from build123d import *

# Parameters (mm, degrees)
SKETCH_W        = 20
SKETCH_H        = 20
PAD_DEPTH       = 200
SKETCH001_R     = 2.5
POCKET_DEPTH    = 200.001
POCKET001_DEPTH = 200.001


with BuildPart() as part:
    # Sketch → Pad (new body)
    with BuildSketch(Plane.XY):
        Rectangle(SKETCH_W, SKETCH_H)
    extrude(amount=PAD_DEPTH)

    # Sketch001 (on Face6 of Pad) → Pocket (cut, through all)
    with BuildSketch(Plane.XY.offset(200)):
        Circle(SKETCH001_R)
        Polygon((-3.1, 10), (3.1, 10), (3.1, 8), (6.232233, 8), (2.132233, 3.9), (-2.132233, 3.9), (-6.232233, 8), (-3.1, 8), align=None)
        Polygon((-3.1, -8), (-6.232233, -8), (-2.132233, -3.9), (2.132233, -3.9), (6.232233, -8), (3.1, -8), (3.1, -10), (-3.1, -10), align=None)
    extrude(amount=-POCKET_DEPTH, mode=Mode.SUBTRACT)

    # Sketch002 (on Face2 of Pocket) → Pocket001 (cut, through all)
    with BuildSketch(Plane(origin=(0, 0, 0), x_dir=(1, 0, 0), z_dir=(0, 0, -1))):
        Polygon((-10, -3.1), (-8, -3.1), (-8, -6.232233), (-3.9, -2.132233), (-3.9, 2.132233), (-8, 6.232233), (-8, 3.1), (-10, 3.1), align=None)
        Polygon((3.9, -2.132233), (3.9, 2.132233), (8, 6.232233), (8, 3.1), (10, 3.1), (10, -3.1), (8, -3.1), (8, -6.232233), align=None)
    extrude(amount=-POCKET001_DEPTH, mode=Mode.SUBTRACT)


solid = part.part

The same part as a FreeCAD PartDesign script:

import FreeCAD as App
import Part
import Sketcher

V = App.Vector
Q = App.Units.Quantity


def add_polygon(sketch, points):
    """Adds a closed chain of lines whose ends are joined by coincident constraints."""
    first, n = sketch.GeometryCount, len(points)
    for a, b in zip(points, points[1:] + points[:1]):
        sketch.addGeometry(Part.LineSegment(App.Vector(*a, 0), App.Vector(*b, 0)), False)
    for i in range(n):
        sketch.addConstraint(Sketcher.Constraint("Coincident", first + i, 2, first + (i + 1) % n, 1))

doc = App.newDocument("Part")
body = doc.addObject("PartDesign::Body", "Body")

# Sketch on XY plane
sketch1 = body.newObject("Sketcher::SketchObject", "Sketch")
sketch1.AttachmentSupport = (doc.getObject("XY_Plane"), [""])
sketch1.MapMode = "FlatFace"
add_polygon(sketch1, [(-10, 10), (-10, -10), (10, -10), (10, 10)])  # lines 0-3
sketch1.addConstraint([
    Sketcher.Constraint("Vertical", 0),
    Sketcher.Constraint("Horizontal", 1),
    Sketcher.Constraint("Vertical", 2),
    Sketcher.Constraint("Horizontal", 3),
    Sketcher.Constraint("Symmetric", 0, 2, 2, 2, -1, 1),
    Sketcher.Constraint("Equal", 3, 0),
    Sketcher.Constraint("DistanceX", 1, 1, 1, 2, Q("20 mm")),
])
pad1 = body.newObject("PartDesign::Pad", "Pad")
pad1.Profile = sketch1
pad1.Length = 200

# Sketch on XY plane
sketch2 = body.newObject("Sketcher::SketchObject", "Sketch001")
sketch2.AttachmentSupport = (doc.getObject("XY_Plane"), [""])
sketch2.MapMode = "FlatFace"
sketch2.AttachmentOffset = App.Placement(V(0, 0, 200), App.Rotation())
sketch2.addGeometry(Part.Circle(V(0, 0, 0), V(0, 0, 1), 2.5), False)  # 0
add_polygon(sketch2, [(3.1, 10), (-3.1, 10), (-3.1, 8), (-6.232233, 8), (-2.132233, 3.9), (2.132233, 3.9), (6.232233, 8), (3.1, 8)])  # lines 1-8
add_polygon(sketch2, [(-6.232233, -8), (-3.1, -8), (-3.1, -10), (3.1, -10), (3.1, -8), (6.232233, -8), (2.132233, -3.9), (-2.132233, -3.9)])  # lines 9-16
sketch2.addConstraint([
    Sketcher.Constraint("Horizontal", 1),
    Sketcher.Constraint("Vertical", 2),
    Sketcher.Constraint("Horizontal", 3),
    Sketcher.Constraint("Horizontal", 5),
    Sketcher.Constraint("Horizontal", 7),
    Sketcher.Constraint("Vertical", 8),
    Sketcher.Constraint("Horizontal", 9),
    Sketcher.Constraint("Vertical", 10),
    Sketcher.Constraint("Horizontal", 11),
    Sketcher.Constraint("Vertical", 12),
    Sketcher.Constraint("Horizontal", 13),
    Sketcher.Constraint("Horizontal", 15),
    Sketcher.Constraint("Coincident", 0, 3, -1, 1),
    Sketcher.Constraint("Symmetric", 7, 2, 9, 2, -1, 1),
    Sketcher.Constraint("Symmetric", 1, 2, 11, 2, -1, 1),
    Sketcher.Constraint("Symmetric", 3, 2, 13, 2, -1, 1),
    Sketcher.Constraint("Symmetric", 4, 2, 14, 2, -1, 1),
    Sketcher.Constraint("Symmetric", 3, 2, 6, 2, -2),
    Sketcher.Constraint("Perpendicular", 4, 6),
    Sketcher.Constraint("Perpendicular", 14, 16),
    Sketcher.Constraint("Vertical", 2, 2, 9, 2),
    Sketcher.Constraint("Vertical", 5, 2, 14, 2),
    Sketcher.Constraint("Vertical", 4, 2, 15, 2),
    Sketcher.Constraint("Diameter", 0, Q("5 mm")),
    Sketcher.Constraint("DistanceY", 2, 2, 2, 1, Q("2 mm")),
    Sketcher.Constraint("DistanceX", 1, 2, 1, 1, Q("6.2 mm")),
    Sketcher.Constraint("DistanceY", -1, 1, 1, 2, Q("10 mm")),
    Sketcher.Constraint("DistanceY", -1, 1, 4, 2, Q("3.9 mm")),
    Sketcher.Constraint("DistanceX", 3, 2, 3, 1, Q("3.132233 mm")),
])
pocket1 = body.newObject("PartDesign::Pocket", "Pocket")
pocket1.Profile = sketch2
pocket1.Type = "ThroughAll"

# Sketch on XY plane
sketch3 = body.newObject("Sketcher::SketchObject", "Sketch002")
sketch3.AttachmentSupport = (doc.getObject("XY_Plane"), [""])
sketch3.MapMode = "FlatFace"
add_polygon(sketch3, [(-10, 3.1), (-8, 3.1), (-8, 6.232233), (-3.9, 2.132233), (-3.9, -2.132233), (-8, -6.232233), (-8, -3.1), (-10, -3.1)])  # lines 0-7
add_polygon(sketch3, [(3.9, -2.132233), (3.9, 2.132233), (8, 6.232233), (8, 3.1), (10, 3.1), (10, -3.1), (8, -3.1), (8, -6.232233)])  # lines 8-15
sketch3.addConstraint([
    Sketcher.Constraint("Horizontal", 0),
    Sketcher.Constraint("Vertical", 1),
    Sketcher.Constraint("Vertical", 3),
    Sketcher.Constraint("Vertical", 5),
    Sketcher.Constraint("Horizontal", 6),
    Sketcher.Constraint("Vertical", 7),
    Sketcher.Constraint("Vertical", 8),
    Sketcher.Constraint("Vertical", 10),
    Sketcher.Constraint("Horizontal", 11),
    Sketcher.Constraint("Vertical", 12),
    Sketcher.Constraint("Horizontal", 13),
    Sketcher.Constraint("Vertical", 14),
    Sketcher.Constraint("Symmetric", 3, 2, 8, 2, -1, 1),
    Sketcher.Constraint("Symmetric", 4, 2, 9, 2, -1, 1),
    Sketcher.Constraint("Symmetric", 6, 2, 11, 2, -1, 1),
    Sketcher.Constraint("Symmetric", 0, 2, 13, 2, -1, 1),
    Sketcher.Constraint("Symmetric", 1, 2, 9, 2, -2),
    Sketcher.Constraint("Perpendicular", 2, 4),
    Sketcher.Constraint("Perpendicular", 9, 15),
    Sketcher.Constraint("Horizontal", 2, 2, 8, 2),
    Sketcher.Constraint("Horizontal", 7, 2, 10, 2),
    Sketcher.Constraint("Horizontal", 4, 2, 14, 2),
    Sketcher.Constraint("DistanceX", 0, 1, 0, 2, Q("2 mm")),
    Sketcher.Constraint("DistanceY", 7, 1, 7, 2, Q("6.2 mm")),
    Sketcher.Constraint("DistanceX", 0, 2, -1, 1, Q("8 mm")),
    Sketcher.Constraint("DistanceX", 2, 2, -1, 1, Q("3.9 mm")),
    Sketcher.Constraint("DistanceY", 1, 1, 1, 2, Q("3.132233 mm")),
])
pocket2 = body.newObject("PartDesign::Pocket", "Pocket001")
pocket2.Profile = sketch3
pocket2.Type = "ThroughAll"
pocket2.Reversed = True

doc.recompute()
